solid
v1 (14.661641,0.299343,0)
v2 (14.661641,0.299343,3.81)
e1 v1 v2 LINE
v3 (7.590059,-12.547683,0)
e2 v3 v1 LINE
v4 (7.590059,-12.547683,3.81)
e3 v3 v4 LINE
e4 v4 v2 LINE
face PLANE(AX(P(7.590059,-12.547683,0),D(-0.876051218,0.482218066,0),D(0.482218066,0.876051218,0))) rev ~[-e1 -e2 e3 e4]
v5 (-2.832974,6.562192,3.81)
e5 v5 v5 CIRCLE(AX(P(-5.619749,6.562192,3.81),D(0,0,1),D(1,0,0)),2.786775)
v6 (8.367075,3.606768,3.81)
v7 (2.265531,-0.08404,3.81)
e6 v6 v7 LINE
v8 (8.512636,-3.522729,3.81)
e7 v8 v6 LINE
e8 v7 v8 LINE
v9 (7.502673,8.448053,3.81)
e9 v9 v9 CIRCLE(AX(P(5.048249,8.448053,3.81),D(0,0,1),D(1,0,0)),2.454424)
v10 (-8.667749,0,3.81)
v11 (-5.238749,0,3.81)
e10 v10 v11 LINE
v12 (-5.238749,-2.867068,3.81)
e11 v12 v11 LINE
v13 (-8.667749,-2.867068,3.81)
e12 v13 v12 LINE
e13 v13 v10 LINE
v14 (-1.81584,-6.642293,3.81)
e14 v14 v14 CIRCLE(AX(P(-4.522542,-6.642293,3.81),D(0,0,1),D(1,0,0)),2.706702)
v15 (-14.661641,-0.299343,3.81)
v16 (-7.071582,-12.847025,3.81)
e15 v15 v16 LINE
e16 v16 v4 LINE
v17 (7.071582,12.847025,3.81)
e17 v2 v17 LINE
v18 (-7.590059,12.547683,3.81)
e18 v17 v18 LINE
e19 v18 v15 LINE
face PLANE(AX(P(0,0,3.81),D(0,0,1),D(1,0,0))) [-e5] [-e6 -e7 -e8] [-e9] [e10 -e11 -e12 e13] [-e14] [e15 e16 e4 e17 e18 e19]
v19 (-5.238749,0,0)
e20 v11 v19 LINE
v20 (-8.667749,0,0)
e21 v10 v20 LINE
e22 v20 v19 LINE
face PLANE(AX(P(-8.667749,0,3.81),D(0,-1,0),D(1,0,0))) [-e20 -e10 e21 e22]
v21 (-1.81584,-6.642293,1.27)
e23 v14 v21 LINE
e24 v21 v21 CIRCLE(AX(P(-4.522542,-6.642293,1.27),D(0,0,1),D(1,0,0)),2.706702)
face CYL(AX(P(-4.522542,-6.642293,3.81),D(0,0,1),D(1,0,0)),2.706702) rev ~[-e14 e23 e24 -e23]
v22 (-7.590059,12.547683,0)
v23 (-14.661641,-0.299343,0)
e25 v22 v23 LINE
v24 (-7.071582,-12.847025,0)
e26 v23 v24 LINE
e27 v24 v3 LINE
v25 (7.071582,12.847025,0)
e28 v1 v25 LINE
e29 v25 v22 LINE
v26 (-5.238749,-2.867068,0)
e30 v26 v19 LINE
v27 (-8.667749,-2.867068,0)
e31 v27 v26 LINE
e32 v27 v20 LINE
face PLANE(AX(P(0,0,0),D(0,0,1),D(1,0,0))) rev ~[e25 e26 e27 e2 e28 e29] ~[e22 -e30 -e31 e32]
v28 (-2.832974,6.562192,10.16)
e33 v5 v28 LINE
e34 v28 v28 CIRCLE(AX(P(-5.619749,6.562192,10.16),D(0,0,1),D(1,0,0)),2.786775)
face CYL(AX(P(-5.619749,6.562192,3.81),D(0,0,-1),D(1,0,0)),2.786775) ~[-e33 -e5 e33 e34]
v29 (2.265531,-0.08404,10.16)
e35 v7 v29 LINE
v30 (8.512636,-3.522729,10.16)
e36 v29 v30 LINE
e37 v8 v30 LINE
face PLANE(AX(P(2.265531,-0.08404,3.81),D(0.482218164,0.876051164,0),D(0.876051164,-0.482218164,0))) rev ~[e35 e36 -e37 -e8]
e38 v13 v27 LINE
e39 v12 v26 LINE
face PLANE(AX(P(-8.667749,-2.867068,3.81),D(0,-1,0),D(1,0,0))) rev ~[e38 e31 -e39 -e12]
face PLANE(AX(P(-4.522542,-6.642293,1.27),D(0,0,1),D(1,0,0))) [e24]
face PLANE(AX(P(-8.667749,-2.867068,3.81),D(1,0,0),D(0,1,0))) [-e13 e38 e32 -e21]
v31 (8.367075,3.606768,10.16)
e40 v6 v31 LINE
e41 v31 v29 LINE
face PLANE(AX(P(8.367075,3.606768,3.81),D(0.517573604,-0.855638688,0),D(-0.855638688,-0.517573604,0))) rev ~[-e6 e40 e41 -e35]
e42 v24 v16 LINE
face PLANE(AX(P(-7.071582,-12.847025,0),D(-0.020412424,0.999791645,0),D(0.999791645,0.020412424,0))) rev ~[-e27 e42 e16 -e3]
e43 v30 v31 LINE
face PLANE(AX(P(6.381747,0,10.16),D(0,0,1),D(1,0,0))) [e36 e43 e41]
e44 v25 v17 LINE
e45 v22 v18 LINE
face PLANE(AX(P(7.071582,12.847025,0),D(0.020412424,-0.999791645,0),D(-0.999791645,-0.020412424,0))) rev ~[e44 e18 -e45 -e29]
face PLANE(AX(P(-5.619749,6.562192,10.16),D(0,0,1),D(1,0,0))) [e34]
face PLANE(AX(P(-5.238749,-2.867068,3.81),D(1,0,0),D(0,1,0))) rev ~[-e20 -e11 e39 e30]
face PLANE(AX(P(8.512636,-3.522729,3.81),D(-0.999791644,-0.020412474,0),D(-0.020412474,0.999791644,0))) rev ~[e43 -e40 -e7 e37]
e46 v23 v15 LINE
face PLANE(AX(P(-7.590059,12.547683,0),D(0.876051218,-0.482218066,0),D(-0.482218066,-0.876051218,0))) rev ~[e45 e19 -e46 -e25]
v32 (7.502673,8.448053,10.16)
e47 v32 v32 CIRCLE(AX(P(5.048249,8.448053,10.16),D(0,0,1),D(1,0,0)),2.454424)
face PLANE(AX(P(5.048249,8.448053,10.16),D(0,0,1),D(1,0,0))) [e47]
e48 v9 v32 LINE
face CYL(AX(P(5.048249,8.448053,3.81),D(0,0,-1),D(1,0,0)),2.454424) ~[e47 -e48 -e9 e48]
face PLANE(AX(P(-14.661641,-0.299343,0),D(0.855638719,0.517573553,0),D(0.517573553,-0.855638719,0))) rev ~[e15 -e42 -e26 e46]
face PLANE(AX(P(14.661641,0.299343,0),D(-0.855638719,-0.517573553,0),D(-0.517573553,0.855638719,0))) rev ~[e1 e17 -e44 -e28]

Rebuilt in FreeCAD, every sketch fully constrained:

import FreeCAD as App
import Part
import Sketcher

V = App.Vector
Q = App.Units.Quantity

doc = App.newDocument("Part")
params = doc.addObject("Spreadsheet::Sheet", "Params")
for row, (alias, value) in enumerate([
    ("pad1_length", "0.15 in"),
    ("pad2_length", "0.25 in"),
    ("sketch3_width", "0.135 in"),
    ("pocket1_length", "0.2 in"),
    ("pocket2_length", "0.1 in"),
], start=1):
    params.set(f"A{row}", alias)
    params.set(f"B{row}", "=" + value)
    params.setAlias(f"B{row}", alias)

body = doc.addObject("PartDesign::Body", "Body")

# Sketch on XY plane
sketch1 = body.newObject("Sketcher::SketchObject", "Sketch")
sketch1.AttachmentSupport = (doc.getObject("XY_Plane"), [""])
sketch1.MapMode = "FlatFace"
sketch1.addGeometry(Part.LineSegment(V(15, 0, 0), V(7, 13, 0)), False)
sketch1.addGeometry(Part.LineSegment(V(7, 13, 0), V(-8, 13, 0)), False)
sketch1.addGeometry(Part.LineSegment(V(-8, 13, 0), V(-15, 0, 0)), False)
sketch1.addGeometry(Part.LineSegment(V(-15, 0, 0), V(-7, -13, 0)), False)
sketch1.addGeometry(Part.LineSegment(V(-7, -13, 0), V(8, -13, 0)), False)
sketch1.addGeometry(Part.LineSegment(V(8, -13, 0), V(15, 0, 0)), False)
sketch1.addConstraint(Sketcher.Constraint("Coincident", 0, 2, 1, 1))
sketch1.addConstraint(Sketcher.Constraint("Coincident", 1, 2, 2, 1))
sketch1.addConstraint(Sketcher.Constraint("Coincident", 2, 2, 3, 1))
sketch1.addConstraint(Sketcher.Constraint("Coincident", 3, 2, 4, 1))
sketch1.addConstraint(Sketcher.Constraint("Coincident", 4, 2, 5, 1))
sketch1.addConstraint(Sketcher.Constraint("Coincident", 5, 2, 0, 1))
sketch1.addConstraint(Sketcher.Constraint("Symmetric", 0, 2, 3, 2, -1, 1))
sketch1.addConstraint(Sketcher.Constraint("Symmetric", 1, 2, 4, 2, -1, 1))
sketch1.addConstraint(Sketcher.Constraint("Symmetric", 2, 2, 5, 2, -1, 1))
sketch1.addConstraint(Sketcher.Constraint("Equal", 0, 1))
sketch1.addConstraint(Sketcher.Constraint("Equal", 1, 2))
sketch1.addConstraint(Sketcher.Constraint("DistanceX", 2, 2, 4, 2, Q("22.2517 mm")))
sketch1.addConstraint(Sketcher.Constraint("DistanceX", 1, 2, -1, 1, Q("7.590059 mm")))
sketch1.addConstraint(Sketcher.Constraint("DistanceX", 1, 2, 0, 2, Q("14.661641 mm")))
sketch1.addConstraint(Sketcher.Constraint("DistanceY", 2, 2, 0, 2, Q("13.146368 mm")))
pad1 = body.newObject("PartDesign::Pad", "Pad")
pad1.Profile = sketch1
pad1.setExpression("Length", "Params.pad1_length")

# Sketch on XY plane
sketch2 = body.newObject("Sketcher::SketchObject", "Sketch001")
sketch2.AttachmentSupport = (doc.getObject("XY_Plane"), [""])
sketch2.MapMode = "FlatFace"
sketch2.AttachmentOffset = App.Placement(V(0, 0, 0.15 * 25.4), App.Rotation())
sketch2.addGeometry(Part.Circle(V(-5.6, 6.6, 0), V(0, 0, 1), 2.8), False)
sketch2.addGeometry(Part.Circle(V(5, 8.4, 0), V(0, 0, 1), 2.5), False)
sketch2.addGeometry(Part.LineSegment(V(8.5, -3.5, 0), V(8.4, 3.6, 0)), False)
sketch2.addGeometry(Part.LineSegment(V(8.4, 3.6, 0), V(2.3, -0.1, 0)), False)
sketch2.addGeometry(Part.LineSegment(V(2.3, -0.1, 0), V(8.5, -3.5, 0)), False)
sketch2.addConstraint(Sketcher.Constraint("Coincident", 2, 2, 3, 1))
sketch2.addConstraint(Sketcher.Constraint("Coincident", 3, 2, 4, 1))
sketch2.addConstraint(Sketcher.Constraint("Coincident", 4, 2, 2, 1))
sketch2.addConstraint(Sketcher.Constraint("Equal", 2, 3))
sketch2.addConstraint(Sketcher.Constraint("Equal", 3, 4))
sketch2.addConstraint(Sketcher.Constraint("DistanceX", 0, 3, 1, 3, Q("0.4199999 in")))
sketch2.addConstraint(Sketcher.Constraint("Diameter", 0, Q("5.57355 mm")))
sketch2.addConstraint(Sketcher.Constraint("Diameter", 1, Q("4.908848 mm")))
sketch2.addConstraint(Sketcher.Constraint("Distance", 3, Q("7.130982 mm")))
sketch2.addConstraint(Sketcher.Constraint("DistanceX", 0, 3, -1, 1, Q("5.619749 mm")))
sketch2.addConstraint(Sketcher.Constraint("DistanceY", -1, 1, 0, 3, Q("6.562192 mm")))
sketch2.addConstraint(Sketcher.Constraint("DistanceY", -1, 1, 2, 2, Q("3.606768 mm")))
sketch2.addConstraint(Sketcher.Constraint("DistanceX", -1, 1, 3, 2, Q("2.265531 mm")))
sketch2.addConstraint(Sketcher.Constraint("DistanceY", 3, 2, -1, 1, Q("0.08404 mm")))
sketch2.addConstraint(Sketcher.Constraint("DistanceY", 0, 3, 1, 3, Q("1.885861 mm")))
pad2 = body.newObject("PartDesign::Pad", "Pad001")
pad2.Profile = sketch2
pad2.setExpression("Length", "Params.pad2_length")

# Sketch on XY plane
sketch3 = body.newObject("Sketcher::SketchObject", "Sketch002")
sketch3.AttachmentSupport = (doc.getObject("XY_Plane"), [""])
sketch3.MapMode = "FlatFace"
sketch3.AttachmentOffset = App.Placement(V(0, 0, 0.15 * 25.4), App.Rotation())
sketch3.addGeometry(Part.LineSegment(V(-8.7, 0, 0), V(-8.7, -2.9, 0)), False)
sketch3.addGeometry(Part.LineSegment(V(-8.7, -2.9, 0), V(-5.2, -2.9, 0)), False)
sketch3.addGeometry(Part.LineSegment(V(-5.2, -2.9, 0), V(-5.2, 0, 0)), False)
sketch3.addGeometry(Part.LineSegment(V(-5.2, 0, 0), V(-8.7, 0, 0)), False)
sketch3.addConstraint(Sketcher.Constraint("Coincident", 0, 2, 1, 1))
sketch3.addConstraint(Sketcher.Constraint("Coincident", 1, 2, 2, 1))
sketch3.addConstraint(Sketcher.Constraint("Coincident", 2, 2, 3, 1))
sketch3.addConstraint(Sketcher.Constraint("Coincident", 3, 2, 0, 1))
sketch3.addConstraint(Sketcher.Constraint("Vertical", 0))
sketch3.addConstraint(Sketcher.Constraint("Horizontal", 1))
sketch3.addConstraint(Sketcher.Constraint("Vertical", 2))
sketch3.addConstraint(Sketcher.Constraint("Horizontal", 3))
sketch3.addConstraint(Sketcher.Constraint("PointOnObject", 2, 2, -1))
sketch3.addConstraint(Sketcher.Constraint("DistanceX", 1, 1, 1, 2, Q("0.135 in")))
sketch3.addConstraint(Sketcher.Constraint("DistanceY", 0, 2, 0, 1, Q("2.867069 mm")))
sketch3.addConstraint(Sketcher.Constraint("DistanceX", 0, 2, -1, 1, Q("8.667749 mm")))
sketch3.setExpression("Constraints[9]", "Params.sketch3_width")
pocket1 = body.newObject("PartDesign::Pocket", "Pocket")
pocket1.Profile = sketch3
pocket1.setExpression("Length", "Params.pocket1_length")

# Sketch on XY plane
sketch4 = body.newObject("Sketcher::SketchObject", "Sketch003")
sketch4.AttachmentSupport = (doc.getObject("XY_Plane"), [""])
sketch4.MapMode = "FlatFace"
sketch4.AttachmentOffset = App.Placement(V(0, 0, 0.15 * 25.4), App.Rotation())
sketch4.addGeometry(Part.Circle(V(-4.5, -6.6, 0), V(0, 0, 1), 2.7), False)
sketch4.addConstraint(Sketcher.Constraint("Diameter", 0, Q("5.413404 mm")))
sketch4.addConstraint(Sketcher.Constraint("DistanceX", 0, 3, -1, 1, Q("4.522542 mm")))
sketch4.addConstraint(Sketcher.Constraint("DistanceY", 0, 3, -1, 1, Q("6.642293 mm")))
pocket2 = body.newObject("PartDesign::Pocket", "Pocket001")
pocket2.Profile = sketch4
pocket2.setExpression("Length", "Params.pocket2_length")

doc.recompute()
